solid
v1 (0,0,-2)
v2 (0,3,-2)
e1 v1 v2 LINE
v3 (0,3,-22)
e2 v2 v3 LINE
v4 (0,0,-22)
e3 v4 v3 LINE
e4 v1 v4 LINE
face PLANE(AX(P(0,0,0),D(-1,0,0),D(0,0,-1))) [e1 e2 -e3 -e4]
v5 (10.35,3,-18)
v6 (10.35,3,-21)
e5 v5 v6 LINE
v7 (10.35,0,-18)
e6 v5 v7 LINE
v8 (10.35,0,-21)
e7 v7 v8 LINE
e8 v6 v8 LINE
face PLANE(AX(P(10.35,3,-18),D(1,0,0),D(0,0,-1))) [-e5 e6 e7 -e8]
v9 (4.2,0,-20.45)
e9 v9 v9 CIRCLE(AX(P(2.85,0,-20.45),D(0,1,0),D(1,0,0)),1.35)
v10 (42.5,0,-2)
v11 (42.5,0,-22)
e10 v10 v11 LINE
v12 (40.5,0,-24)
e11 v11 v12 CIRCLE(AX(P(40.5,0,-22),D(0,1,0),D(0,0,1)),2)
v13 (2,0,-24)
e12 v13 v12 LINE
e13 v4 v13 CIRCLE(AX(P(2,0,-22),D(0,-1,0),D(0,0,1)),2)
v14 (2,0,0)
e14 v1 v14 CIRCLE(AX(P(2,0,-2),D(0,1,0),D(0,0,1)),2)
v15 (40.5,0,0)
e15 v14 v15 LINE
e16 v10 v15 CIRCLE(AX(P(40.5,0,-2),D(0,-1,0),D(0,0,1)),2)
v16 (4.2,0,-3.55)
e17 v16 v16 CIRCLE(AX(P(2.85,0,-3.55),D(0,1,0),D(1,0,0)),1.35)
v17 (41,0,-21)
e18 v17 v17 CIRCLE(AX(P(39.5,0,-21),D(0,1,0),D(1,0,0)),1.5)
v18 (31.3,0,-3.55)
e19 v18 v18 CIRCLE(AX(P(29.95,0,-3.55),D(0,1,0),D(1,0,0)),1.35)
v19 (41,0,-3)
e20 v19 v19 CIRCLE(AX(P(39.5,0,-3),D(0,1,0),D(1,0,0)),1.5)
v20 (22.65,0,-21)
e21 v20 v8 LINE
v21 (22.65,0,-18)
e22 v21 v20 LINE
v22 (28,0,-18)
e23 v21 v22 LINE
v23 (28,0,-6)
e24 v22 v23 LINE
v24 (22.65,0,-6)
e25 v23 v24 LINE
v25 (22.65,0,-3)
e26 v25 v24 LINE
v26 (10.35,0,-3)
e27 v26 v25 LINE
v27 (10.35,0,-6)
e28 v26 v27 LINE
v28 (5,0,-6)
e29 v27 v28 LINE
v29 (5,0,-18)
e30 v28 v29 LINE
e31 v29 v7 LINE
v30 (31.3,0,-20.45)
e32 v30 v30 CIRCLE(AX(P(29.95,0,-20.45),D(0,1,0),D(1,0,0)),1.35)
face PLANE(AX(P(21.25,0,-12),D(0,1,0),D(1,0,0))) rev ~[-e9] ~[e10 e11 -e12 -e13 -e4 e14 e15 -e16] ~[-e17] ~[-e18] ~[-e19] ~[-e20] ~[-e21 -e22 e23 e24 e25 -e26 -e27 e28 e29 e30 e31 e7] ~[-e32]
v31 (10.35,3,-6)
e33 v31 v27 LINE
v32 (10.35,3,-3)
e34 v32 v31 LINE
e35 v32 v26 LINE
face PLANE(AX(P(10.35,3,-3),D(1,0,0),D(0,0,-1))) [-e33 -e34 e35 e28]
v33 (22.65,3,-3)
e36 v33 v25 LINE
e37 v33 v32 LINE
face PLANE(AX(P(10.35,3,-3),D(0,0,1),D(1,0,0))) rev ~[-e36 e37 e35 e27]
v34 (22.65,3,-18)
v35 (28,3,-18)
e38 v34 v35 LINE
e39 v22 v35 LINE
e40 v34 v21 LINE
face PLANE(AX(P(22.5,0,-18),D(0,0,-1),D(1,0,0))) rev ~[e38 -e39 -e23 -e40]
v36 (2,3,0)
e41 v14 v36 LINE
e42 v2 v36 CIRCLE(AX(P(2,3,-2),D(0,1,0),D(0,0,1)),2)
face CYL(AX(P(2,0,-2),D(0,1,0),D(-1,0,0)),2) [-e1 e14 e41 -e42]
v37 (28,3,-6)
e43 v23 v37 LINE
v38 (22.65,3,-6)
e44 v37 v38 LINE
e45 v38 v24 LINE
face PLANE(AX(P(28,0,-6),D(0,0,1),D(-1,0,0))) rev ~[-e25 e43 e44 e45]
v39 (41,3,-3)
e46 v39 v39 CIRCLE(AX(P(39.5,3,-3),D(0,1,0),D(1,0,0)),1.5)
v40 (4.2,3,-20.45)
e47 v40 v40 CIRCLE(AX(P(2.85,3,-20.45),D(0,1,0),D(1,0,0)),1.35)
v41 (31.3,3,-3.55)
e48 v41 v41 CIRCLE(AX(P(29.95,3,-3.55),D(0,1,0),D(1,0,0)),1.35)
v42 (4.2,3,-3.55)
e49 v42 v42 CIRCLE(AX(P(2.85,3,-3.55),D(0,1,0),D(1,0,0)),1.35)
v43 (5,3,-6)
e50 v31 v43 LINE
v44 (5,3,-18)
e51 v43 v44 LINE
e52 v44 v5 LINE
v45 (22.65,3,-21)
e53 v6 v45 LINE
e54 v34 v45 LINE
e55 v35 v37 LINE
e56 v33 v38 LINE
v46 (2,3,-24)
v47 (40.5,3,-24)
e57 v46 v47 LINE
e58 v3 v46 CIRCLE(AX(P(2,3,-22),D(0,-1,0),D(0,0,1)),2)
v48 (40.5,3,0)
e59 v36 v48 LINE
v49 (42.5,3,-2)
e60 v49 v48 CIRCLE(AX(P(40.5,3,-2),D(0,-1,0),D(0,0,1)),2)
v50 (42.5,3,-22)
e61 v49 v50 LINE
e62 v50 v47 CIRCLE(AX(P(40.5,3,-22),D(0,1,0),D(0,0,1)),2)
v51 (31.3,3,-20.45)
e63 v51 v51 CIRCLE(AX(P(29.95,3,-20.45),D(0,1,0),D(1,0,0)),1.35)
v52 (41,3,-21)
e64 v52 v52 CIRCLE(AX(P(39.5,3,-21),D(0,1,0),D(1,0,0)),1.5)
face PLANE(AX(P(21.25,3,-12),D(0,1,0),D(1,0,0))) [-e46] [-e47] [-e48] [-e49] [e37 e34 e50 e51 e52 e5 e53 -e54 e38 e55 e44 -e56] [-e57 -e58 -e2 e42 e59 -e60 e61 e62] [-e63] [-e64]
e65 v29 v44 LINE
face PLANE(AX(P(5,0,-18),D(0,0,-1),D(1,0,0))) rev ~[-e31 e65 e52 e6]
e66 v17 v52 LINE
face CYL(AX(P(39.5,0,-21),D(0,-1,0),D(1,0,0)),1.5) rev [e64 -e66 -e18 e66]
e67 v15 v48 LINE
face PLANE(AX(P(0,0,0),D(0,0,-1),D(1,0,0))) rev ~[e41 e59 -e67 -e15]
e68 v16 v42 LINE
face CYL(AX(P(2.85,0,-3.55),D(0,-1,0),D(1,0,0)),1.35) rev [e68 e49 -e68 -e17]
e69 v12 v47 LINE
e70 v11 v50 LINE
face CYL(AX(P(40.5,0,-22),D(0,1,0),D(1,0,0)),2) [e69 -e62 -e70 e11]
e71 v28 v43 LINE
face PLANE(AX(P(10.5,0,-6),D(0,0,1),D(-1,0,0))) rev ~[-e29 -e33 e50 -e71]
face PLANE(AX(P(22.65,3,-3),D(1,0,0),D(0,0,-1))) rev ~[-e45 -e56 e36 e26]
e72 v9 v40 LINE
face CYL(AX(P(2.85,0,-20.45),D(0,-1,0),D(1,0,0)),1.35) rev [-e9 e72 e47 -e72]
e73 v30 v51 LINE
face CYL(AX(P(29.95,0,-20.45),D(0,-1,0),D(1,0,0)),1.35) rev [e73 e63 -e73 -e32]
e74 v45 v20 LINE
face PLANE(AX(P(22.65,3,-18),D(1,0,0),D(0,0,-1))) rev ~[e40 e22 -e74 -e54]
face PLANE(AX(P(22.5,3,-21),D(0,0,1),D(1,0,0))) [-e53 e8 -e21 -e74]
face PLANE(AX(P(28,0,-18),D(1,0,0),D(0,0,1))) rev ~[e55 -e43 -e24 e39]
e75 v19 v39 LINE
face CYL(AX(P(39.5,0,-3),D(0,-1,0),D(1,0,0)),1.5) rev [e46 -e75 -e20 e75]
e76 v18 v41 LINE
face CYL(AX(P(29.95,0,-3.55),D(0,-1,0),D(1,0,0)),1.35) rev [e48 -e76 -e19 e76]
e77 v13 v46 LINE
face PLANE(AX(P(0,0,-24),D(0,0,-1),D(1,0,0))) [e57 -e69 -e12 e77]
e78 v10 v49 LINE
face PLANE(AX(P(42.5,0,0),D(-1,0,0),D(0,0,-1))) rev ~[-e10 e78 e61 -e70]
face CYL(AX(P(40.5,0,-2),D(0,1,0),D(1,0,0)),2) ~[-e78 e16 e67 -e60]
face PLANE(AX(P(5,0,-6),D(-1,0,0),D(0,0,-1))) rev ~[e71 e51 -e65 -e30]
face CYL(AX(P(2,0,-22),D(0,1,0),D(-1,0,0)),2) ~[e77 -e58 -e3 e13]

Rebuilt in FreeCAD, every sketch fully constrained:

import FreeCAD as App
import Part
import Sketcher
from FreeCAD import Vector


def edges_at(feature, points):
    """Names of the edges that pass closest to the given points."""
    edges = feature.Shape.Edges
    near = lambda p: min(range(len(edges)), key=lambda i: edges[i].distToShape(Part.Vertex(*p))[0])
    return sorted({f"Edge{near(p) + 1}" for p in points})


def add_polygon(sketch, points):
    """Adds a closed chain of lines whose ends are joined by coincident constraints."""
    first, n = sketch.GeometryCount, len(points)
    for a, b in zip(points, points[1:] + points[:1]):
        sketch.addGeometry(Part.LineSegment(App.Vector(*a, 0), App.Vector(*b, 0)), False)
    for i in range(n):
        sketch.addConstraint(Sketcher.Constraint("Coincident", first + i, 2, first + (i + 1) % n, 1))

doc = App.newDocument("Part")
params = doc.addObject("Spreadsheet::Sheet", "Params")
for row, (alias, value) in enumerate([
    ("sketch1_diameter", "3 mm"),
    ("sketch1_diameter2", "2.7 mm"),
    ("sketch1_width", "12 mm"),
    ("sketch1_height", "24 mm"),
    ("sketch1_height2", "3 mm"),
    ("pad1_length", "3 mm"),
    ("sketch2_height", "3 mm"),
    ("sketch2_width", "0.15 mm"),
    ("fillet_radius", "2 mm"),
], start=1):
    params.set(f"A{row}", alias)
    params.set(f"B{row}", "=" + value)
    params.setAlias(f"B{row}", alias)

body = doc.addObject("PartDesign::Body", "Body")

sketch1 = doc.addObject("Sketcher::SketchObject", "Sketch")
body.addObject(sketch1)
sketch1.AttachmentSupport = (doc.XZ_Plane, [""])
sketch1.MapMode = "FlatFace"
add_polygon(sketch1, [(0, -24), (0, 0), (42.5, 0), (42.5, -24)])
sketch1.addGeometry(Part.Circle(Vector(2.9, -3.5, 0), Vector(0, 0, 1), 1.4), False)
sketch1.addGeometry(Part.Circle(Vector(29.9, -3.5, 0), Vector(0, 0, 1), 1.4), False)
sketch1.addGeometry(Part.Circle(Vector(39.5, -3, 0), Vector(0, 0, 1), 1.5), False)
add_polygon(sketch1, [(10.5, -6), (5, -6), (5, -18), (10.5, -18), (10.5, -21), (22.5, -21), (22.5, -18), (28, -18), (28, -6), (22.5, -6), (22.5, -3), (10.5, -3)])
sketch1.addGeometry(Part.Circle(Vector(2.9, -20.4, 0), Vector(0, 0, 1), 1.4), False)
sketch1.addGeometry(Part.Circle(Vector(29.9, -20.4, 0), Vector(0, 0, 1), 1.4), False)
sketch1.addGeometry(Part.Circle(Vector(39.5, -21, 0), Vector(0, 0, 1), 1.5), False)
sketch1.addConstraint([
    Sketcher.Constraint("Vertical", 0),
    Sketcher.Constraint("Horizontal", 1),
    Sketcher.Constraint("Vertical", 2),
    Sketcher.Constraint("Horizontal", 3),
    Sketcher.Constraint("Horizontal", 7),
    Sketcher.Constraint("Vertical", 8),
    Sketcher.Constraint("Horizontal", 9),
    Sketcher.Constraint("Vertical", 10),
    Sketcher.Constraint("Horizontal", 11),
    Sketcher.Constraint("Vertical", 12),
    Sketcher.Constraint("Horizontal", 13),
    Sketcher.Constraint("Vertical", 14),
    Sketcher.Constraint("Horizontal", 15),
    Sketcher.Constraint("Vertical", 16),
    Sketcher.Constraint("Horizontal", 17),
    Sketcher.Constraint("Vertical", 18),
    Sketcher.Constraint("Coincident", 0, 2, -1, 1),
    Sketcher.Constraint("Equal", 4, 5),
    Sketcher.Constraint("Equal", 5, 19),
    Sketcher.Constraint("Equal", 19, 20),
    Sketcher.Constraint("Equal", 6, 21),
    Sketcher.Constraint("Horizontal", 4, 3, 5, 3),
    Sketcher.Constraint("Horizontal", 19, 3, 20, 3),
    Sketcher.Constraint("Horizontal", 21, 3, 10, 2),
    Sketcher.Constraint("Horizontal", 9, 2, 12, 2),
    Sketcher.Constraint("Horizontal", 7, 2, 14, 2),
    Sketcher.Constraint("Horizontal", 6, 3, 16, 2),
    Sketcher.Constraint("Vertical", 4, 3, 19, 3),
    Sketcher.Constraint("Vertical", 5, 3, 20, 3),
    Sketcher.Constraint("Vertical", 6, 3, 21, 3),
    Sketcher.Constraint("Vertical", 12, 2, 15, 2),
    Sketcher.Constraint("Vertical", 10, 2, 17, 2),
    Sketcher.Constraint("Equal", 9, 13),
    Sketcher.Constraint("Equal", 17, 8),
    Sketcher.Constraint("Equal", 12, 16),
    Sketcher.Constraint("Diameter", 6, 3.0),
    Sketcher.Constraint("Diameter", 4, 2.7),
    Sketcher.Constraint("DistanceX", 11, 1, 11, 2, 12.0),
    Sketcher.Constraint("DistanceY", 0, 1, 0, 2, 24.0),
    Sketcher.Constraint("DistanceY", 10, 2, 10, 1, 3.0),
    Sketcher.Constraint("DistanceX", 1, 1, 1, 2, 42.5),
    Sketcher.Constraint("DistanceX", 7, 2, 7, 1, 5.5),
    Sketcher.Constraint("DistanceY", 6, 3, -1, 1, 3.0),
    Sketcher.Constraint("DistanceX", -1, 1, 7, 2, 5.0),
    Sketcher.Constraint("DistanceX", 6, 3, 1, 2, 3.0),
    Sketcher.Constraint("DistanceX", 4, 3, 5, 3, 27.1),
    Sketcher.Constraint("DistanceY", 19, 3, 4, 3, 16.9),
    Sketcher.Constraint("DistanceX", -1, 1, 4, 3, 2.85),
    Sketcher.Constraint("DistanceY", 4, 3, -1, 1, 3.55),
])
sketch1.setExpression("Constraints[51]", "Params.sketch1_diameter")
sketch1.setExpression("Constraints[52]", "Params.sketch1_diameter2")
sketch1.setExpression("Constraints[53]", "Params.sketch1_width")
sketch1.setExpression("Constraints[54]", "Params.sketch1_height")
sketch1.setExpression("Constraints[55]", "Params.sketch1_height2")
pad1 = doc.addObject("PartDesign::Pad", "Pad")
body.addObject(pad1)
pad1.Profile = sketch1
pad1.setExpression("Length", "Params.pad1_length")
pad1.Reversed = True

sketch2 = doc.addObject("Sketcher::SketchObject", "Sketch001")
body.addObject(sketch2)
sketch2.AttachmentSupport = (doc.XZ_Plane, [""])
sketch2.MapMode = "FlatFace"
sketch2.AttachmentOffset = App.Placement(Vector(0, 0, -3), App.Rotation())
add_polygon(sketch2, [(22.5, -6), (22.5, -3), (22.65, -3), (22.65, -6)])
add_polygon(sketch2, [(10.35, -6), (10.35, -3), (10.5, -3), (10.5, -6)])
add_polygon(sketch2, [(22.5, -21), (22.5, -18), (22.65, -18), (22.65, -21)])
add_polygon(sketch2, [(10.35, -21), (10.35, -18), (10.5, -18), (10.5, -21)])
sketch2.addConstraint([
    Sketcher.Constraint("Vertical", 0),
    Sketcher.Constraint("Horizontal", 1),
    Sketcher.Constraint("Vertical", 2),
    Sketcher.Constraint("Horizontal", 3),
    Sketcher.Constraint("Vertical", 4),
    Sketcher.Constraint("Horizontal", 5),
    Sketcher.Constraint("Vertical", 6),
    Sketcher.Constraint("Horizontal", 7),
    Sketcher.Constraint("Vertical", 8),
    Sketcher.Constraint("Horizontal", 9),
    Sketcher.Constraint("Vertical", 10),
    Sketcher.Constraint("Horizontal", 11),
    Sketcher.Constraint("Vertical", 12),
    Sketcher.Constraint("Horizontal", 13),
    Sketcher.Constraint("Vertical", 14),
    Sketcher.Constraint("Horizontal", 15),
    Sketcher.Constraint("Horizontal", 1, 2, 4, 2),
    Sketcher.Constraint("Horizontal", 3, 2, 6, 2),
    Sketcher.Constraint("Horizontal", 9, 2, 12, 2),
    Sketcher.Constraint("Horizontal", 11, 2, 14, 2),
    Sketcher.Constraint("Vertical", 3, 2, 8, 2),
    Sketcher.Constraint("Vertical", 2, 2, 9, 2),
    Sketcher.Constraint("Vertical", 7, 2, 12, 2),
    Sketcher.Constraint("Vertical", 6, 2, 13, 2),
    Sketcher.Constraint("Equal", 3, 5),
    Sketcher.Constraint("Equal", 6, 8),
    Sketcher.Constraint("DistanceY", 0, 1, 0, 2, 3.0),
    Sketcher.Constraint("DistanceY", 0, 2, -1, 1, 3.0),
    Sketcher.Constraint("DistanceY", 8, 2, -1, 1, 18.0),
    Sketcher.Constraint("DistanceX", 5, 2, 0, 2, 12.0),
    Sketcher.Constraint("DistanceX", 1, 1, 1, 2, 0.15),
    Sketcher.Constraint("DistanceX", -1, 1, 0, 2, 22.5),
])
sketch2.setExpression("Constraints[42]", "Params.sketch2_height")
sketch2.setExpression("Constraints[46]", "Params.sketch2_width")
pocket1 = doc.addObject("PartDesign::Pocket", "Pocket")
body.addObject(pocket1)
pocket1.Profile = sketch2
pocket1.Type = "ThroughAll"
pocket1.Reversed = True
doc.recompute()

fillet = doc.addObject("PartDesign::Fillet", "Fillet")
body.addObject(fillet)
fillet.Base = (pocket1, edges_at(pocket1, [
    (0, 1.5, 0),
    (0, 1.5, -24),
    (42.5, 1.5, -24),
    (42.5, 1.5, 0),
]))
fillet.setExpression("Radius", "Params.fillet_radius")

doc.recompute()
